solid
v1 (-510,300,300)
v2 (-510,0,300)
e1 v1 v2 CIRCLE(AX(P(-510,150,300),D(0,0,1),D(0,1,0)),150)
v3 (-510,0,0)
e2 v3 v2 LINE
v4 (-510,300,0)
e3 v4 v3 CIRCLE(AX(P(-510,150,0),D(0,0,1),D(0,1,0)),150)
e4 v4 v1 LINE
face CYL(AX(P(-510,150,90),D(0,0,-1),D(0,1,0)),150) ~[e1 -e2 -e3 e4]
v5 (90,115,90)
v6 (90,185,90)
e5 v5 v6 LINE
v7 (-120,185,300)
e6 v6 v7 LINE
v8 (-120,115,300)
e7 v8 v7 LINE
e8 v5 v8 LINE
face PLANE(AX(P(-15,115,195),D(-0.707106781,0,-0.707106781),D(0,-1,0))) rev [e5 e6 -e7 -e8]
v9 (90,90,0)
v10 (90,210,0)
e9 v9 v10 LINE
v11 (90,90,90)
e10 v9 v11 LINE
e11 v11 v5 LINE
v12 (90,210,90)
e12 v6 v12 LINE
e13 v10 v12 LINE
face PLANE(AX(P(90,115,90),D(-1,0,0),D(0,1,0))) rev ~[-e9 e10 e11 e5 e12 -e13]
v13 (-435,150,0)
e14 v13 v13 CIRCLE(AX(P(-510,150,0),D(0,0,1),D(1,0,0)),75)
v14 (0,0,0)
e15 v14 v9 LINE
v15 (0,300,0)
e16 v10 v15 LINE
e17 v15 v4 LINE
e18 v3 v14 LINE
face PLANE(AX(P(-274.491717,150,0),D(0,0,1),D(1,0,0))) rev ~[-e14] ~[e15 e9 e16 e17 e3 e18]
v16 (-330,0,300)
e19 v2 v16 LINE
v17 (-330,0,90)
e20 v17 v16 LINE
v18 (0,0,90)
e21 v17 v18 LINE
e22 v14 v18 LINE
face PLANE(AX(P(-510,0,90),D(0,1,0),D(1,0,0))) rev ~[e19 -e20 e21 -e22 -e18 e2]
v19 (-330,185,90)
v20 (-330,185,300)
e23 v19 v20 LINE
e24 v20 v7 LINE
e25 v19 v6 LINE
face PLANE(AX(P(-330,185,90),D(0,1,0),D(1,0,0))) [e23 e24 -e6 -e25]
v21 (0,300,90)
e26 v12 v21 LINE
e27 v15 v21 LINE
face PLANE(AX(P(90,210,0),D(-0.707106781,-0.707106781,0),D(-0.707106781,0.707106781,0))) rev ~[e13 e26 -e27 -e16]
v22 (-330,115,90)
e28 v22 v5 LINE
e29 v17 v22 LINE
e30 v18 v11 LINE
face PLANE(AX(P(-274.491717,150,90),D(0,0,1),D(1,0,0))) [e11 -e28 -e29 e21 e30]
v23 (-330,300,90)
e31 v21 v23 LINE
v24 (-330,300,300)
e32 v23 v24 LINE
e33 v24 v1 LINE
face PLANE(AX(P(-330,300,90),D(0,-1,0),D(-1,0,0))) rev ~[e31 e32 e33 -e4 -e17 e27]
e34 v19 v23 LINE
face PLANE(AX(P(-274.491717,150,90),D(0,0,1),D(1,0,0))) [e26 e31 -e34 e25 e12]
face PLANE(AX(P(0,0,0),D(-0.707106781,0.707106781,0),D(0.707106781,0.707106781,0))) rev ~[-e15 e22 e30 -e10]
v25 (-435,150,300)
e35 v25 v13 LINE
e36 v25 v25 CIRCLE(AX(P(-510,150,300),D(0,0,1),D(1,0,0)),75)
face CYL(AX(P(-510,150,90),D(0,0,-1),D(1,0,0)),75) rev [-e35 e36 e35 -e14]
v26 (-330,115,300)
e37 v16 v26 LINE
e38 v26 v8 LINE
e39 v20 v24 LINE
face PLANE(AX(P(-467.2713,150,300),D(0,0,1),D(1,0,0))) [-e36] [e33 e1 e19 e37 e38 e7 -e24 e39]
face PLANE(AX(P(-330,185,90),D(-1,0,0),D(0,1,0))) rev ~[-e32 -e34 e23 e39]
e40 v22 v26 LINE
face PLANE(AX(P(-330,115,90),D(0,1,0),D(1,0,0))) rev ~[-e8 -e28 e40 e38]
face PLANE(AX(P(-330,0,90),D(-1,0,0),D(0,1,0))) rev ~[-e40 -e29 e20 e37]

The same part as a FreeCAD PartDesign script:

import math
import FreeCAD as App
import Part
import Sketcher

V = App.Vector


def edges_at(feature, points):
    """Names of the edges that pass closest to the given points."""
    edges = feature.Shape.Edges
    near = lambda p: min(range(len(edges)), key=lambda i: edges[i].distToShape(Part.Vertex(*p))[0])
    return sorted({f"Edge{near(p) + 1}" for p in points})

doc = App.newDocument("Part")
body = doc.addObject("PartDesign::Body", "Body")

sketch1 = body.newObject("Sketcher::SketchObject", "Sketch")
sketch1.AttachmentSupport = (doc.getObject("XY_Plane"), [""])
sketch1.MapMode = "FlatFace"
sketch1.addGeometry([
    Part.LineSegment(V(-510, 0, 0), V(0, 0, 0)),
    Part.LineSegment(V(0, 0, 0), V(90, 90, 0)),
    Part.LineSegment(V(90, 90, 0), V(90, 210, 0)),
    Part.LineSegment(V(90, 210, 0), V(0, 300, 0)),
    Part.LineSegment(V(0, 300, 0), V(-510, 300, 0)),
    Part.ArcOfCircle(Part.Circle(V(-510, 150, 0), V(0, 0, 1), 150), math.radians(90), math.radians(270)),
    Part.Circle(V(-510, 150, 0), V(0, 0, 1), 75),
], False)
sketch1.addConstraint([
    Sketcher.Constraint("Coincident", 0, 2, 1, 1),
    Sketcher.Constraint("Coincident", 1, 2, 2, 1),
    Sketcher.Constraint("Coincident", 2, 2, 3, 1),
    Sketcher.Constraint("Coincident", 3, 2, 4, 1),
    Sketcher.Constraint("Tangent", 4, 2, 5, 1),
    Sketcher.Constraint("Tangent", 5, 2, 0, 1),
    Sketcher.Constraint("Horizontal", 0),
    Sketcher.Constraint("Vertical", 2),
    Sketcher.Constraint("Horizontal", 4),
    Sketcher.Constraint("Coincident", 0, 2, -1, 1),
    Sketcher.Constraint("Coincident", 6, 3, 5, 3),
    Sketcher.Constraint("PointOnObject", 3, 2, -2),
    Sketcher.Constraint("Perpendicular", 1, 3),
    Sketcher.Constraint("Equal", 1, 3),
    Sketcher.Constraint("Diameter", 6, 150.0),
    Sketcher.Constraint("Radius", 5, 150.0),
    Sketcher.Constraint("DistanceX", 0, 1, 0, 2, 510.0),
    Sketcher.Constraint("DistanceY", 2, 1, 2, 2, 120.0),
])
pad1 = body.newObject("PartDesign::Pad", "Pad")
pad1.Profile = sketch1
pad1.Length = 90

sketch2 = body.newObject("Sketcher::SketchObject", "Sketch001")
sketch2.AttachmentSupport = (doc.getObject("XY_Plane"), [""])
sketch2.MapMode = "FlatFace"
sketch2.AttachmentOffset = App.Placement(V(0, 0, 90), App.Rotation())
sketch2.addGeometry([
    Part.LineSegment(V(-330, 300, 0), V(-510, 300, 0)),
    Part.ArcOfCircle(Part.Circle(V(-510, 150, 0), V(0, 0, 1), 150), math.radians(90), math.radians(270)),
    Part.LineSegment(V(-510, 0, 0), V(-330, 0, 0)),
    Part.LineSegment(V(-330, 0, 0), V(-330, 115, 0)),
    Part.LineSegment(V(-330, 115, 0), V(90, 115, 0)),
    Part.LineSegment(V(90, 115, 0), V(90, 185, 0)),
    Part.LineSegment(V(90, 185, 0), V(-330, 185, 0)),
    Part.LineSegment(V(-330, 185, 0), V(-330, 300, 0)),
    Part.Circle(V(-510, 150, 0), V(0, 0, 1), 75),
], False)
sketch2.addConstraint([
    Sketcher.Constraint("Tangent", 0, 2, 1, 1),
    Sketcher.Constraint("Tangent", 1, 2, 2, 1),
    Sketcher.Constraint("Coincident", 2, 2, 3, 1),
    Sketcher.Constraint("Coincident", 3, 2, 4, 1),
    Sketcher.Constraint("Coincident", 4, 2, 5, 1),
    Sketcher.Constraint("Coincident", 5, 2, 6, 1),
    Sketcher.Constraint("Coincident", 6, 2, 7, 1),
    Sketcher.Constraint("Coincident", 7, 2, 0, 1),
    Sketcher.Constraint("Horizontal", 0),
    Sketcher.Constraint("Horizontal", 2),
    Sketcher.Constraint("Vertical", 3),
    Sketcher.Constraint("Horizontal", 4),
    Sketcher.Constraint("Vertical", 5),
    Sketcher.Constraint("Horizontal", 6),
    Sketcher.Constraint("Vertical", 7),
    Sketcher.Constraint("Coincident", 8, 3, 1, 3),
    Sketcher.Constraint("PointOnObject", 1, 2, -1),
    Sketcher.Constraint("Vertical", 3, 2, 6, 2),
    Sketcher.Constraint("Equal", 3, 7),
    Sketcher.Constraint("Diameter", 8, 150.0),
    Sketcher.Constraint("Radius", 1, 150.0),
    Sketcher.Constraint("DistanceX", 0, 2, 0, 1, 180.0),
    Sketcher.Constraint("DistanceX", 4, 1, 4, 2, 420.0),
    Sketcher.Constraint("DistanceY", 3, 1, 3, 2, 115.0),
    Sketcher.Constraint("DistanceX", 1, 3, -1, 1, 510.0),
])
pad2 = body.newObject("PartDesign::Pad", "Pad001")
pad2.Profile = sketch2
pad2.Length = 210
doc.recompute()

chamfer = body.newObject("PartDesign::Chamfer", "Chamfer")
chamfer.Base = (pad2, edges_at(pad2, [(90, 150, 300)]))
chamfer.Size = 210

doc.recompute()
